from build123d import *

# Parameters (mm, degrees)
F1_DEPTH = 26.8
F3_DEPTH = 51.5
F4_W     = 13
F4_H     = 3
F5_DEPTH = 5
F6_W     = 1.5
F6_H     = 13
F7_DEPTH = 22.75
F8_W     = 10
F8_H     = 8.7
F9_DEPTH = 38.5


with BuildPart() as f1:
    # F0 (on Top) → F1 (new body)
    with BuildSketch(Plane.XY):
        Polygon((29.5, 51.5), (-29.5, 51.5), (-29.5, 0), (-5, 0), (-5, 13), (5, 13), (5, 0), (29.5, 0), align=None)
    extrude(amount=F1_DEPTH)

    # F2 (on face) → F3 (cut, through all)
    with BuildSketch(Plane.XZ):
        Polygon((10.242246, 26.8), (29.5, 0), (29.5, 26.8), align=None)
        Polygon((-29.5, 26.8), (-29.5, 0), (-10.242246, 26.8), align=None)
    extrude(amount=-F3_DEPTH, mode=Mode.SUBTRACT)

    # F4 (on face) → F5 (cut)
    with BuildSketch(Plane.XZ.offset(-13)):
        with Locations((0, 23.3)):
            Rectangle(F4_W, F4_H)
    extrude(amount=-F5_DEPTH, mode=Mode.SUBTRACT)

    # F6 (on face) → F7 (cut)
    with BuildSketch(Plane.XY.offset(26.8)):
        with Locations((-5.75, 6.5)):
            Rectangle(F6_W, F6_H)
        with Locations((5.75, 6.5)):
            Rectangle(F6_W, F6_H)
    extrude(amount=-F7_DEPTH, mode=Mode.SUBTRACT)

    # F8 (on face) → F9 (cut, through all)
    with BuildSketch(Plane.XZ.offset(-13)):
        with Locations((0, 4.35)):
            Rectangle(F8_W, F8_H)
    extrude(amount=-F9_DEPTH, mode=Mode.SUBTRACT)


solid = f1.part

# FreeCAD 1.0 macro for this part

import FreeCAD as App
import Part
import Sketcher
from FreeCAD import Vector
Q = App.Units.Quantity


def add_polygon(sketch, points):
    """Adds a closed chain of lines whose ends are joined by coincident constraints."""
    first, n = sketch.GeometryCount, len(points)
    for a, b in zip(points, points[1:] + points[:1]):
        sketch.addGeometry(Part.LineSegment(App.Vector(*a, 0), App.Vector(*b, 0)), False)
    for i in range(n):
        sketch.addConstraint(Sketcher.Constraint("Coincident", first + i, 2, first + (i + 1) % n, 1))

doc = App.newDocument("Part")
body = doc.addObject("PartDesign::Body", "Body")

# Sketch on XY plane
sketch1 = body.newObject("Sketcher::SketchObject", "Sketch")
sketch1.AttachmentSupport = (doc.getObject("XY_Plane"), [""])
sketch1.MapMode = "FlatFace"
add_polygon(sketch1, [(30, 52), (-30, 52), (-30, 0), (-5, 0), (-5, 13), (5, 13), (5, 0), (30, 0)])  # lines 0-7
sketch1.addConstraint([
    Sketcher.Constraint("Horizontal", 0),
    Sketcher.Constraint("Vertical", 1),
    Sketcher.Constraint("Horizontal", 2),
    Sketcher.Constraint("Vertical", 3),
    Sketcher.Constraint("Horizontal", 4),
    Sketcher.Constraint("Vertical", 5),
    Sketcher.Constraint("Horizontal", 6),
    Sketcher.Constraint("Vertical", 7),
    Sketcher.Constraint("Symmetric", 2, 2, 5, 2, -1, 1),
    Sketcher.Constraint("Symmetric", 1, 2, 6, 2, -2),
    Sketcher.Constraint("DistanceX", 0, 2, 0, 1, 59.0),
    Sketcher.Constraint("DistanceX", 4, 1, 4, 2, 10.0),
    Sketcher.Constraint("DistanceY", 3, 1, 3, 2, 13.0),
    Sketcher.Constraint("DistanceY", 1, 2, 1, 1, 51.5),
])
pad1 = body.newObject("PartDesign::Pad", "Pad")
pad1.Profile = sketch1
pad1.Length = 26.8

# Sketch on XZ plane
sketch2 = body.newObject("Sketcher::SketchObject", "Sketch001")
sketch2.AttachmentSupport = (doc.getObject("XZ_Plane"), [""])
sketch2.MapMode = "FlatFace"
add_polygon(sketch2, [(10, 27), (30, 0), (30, 27)])  # lines 0-2
add_polygon(sketch2, [(-30, 27), (-30, 0), (-10, 27)])  # lines 3-5
sketch2.addConstraint([
    Sketcher.Constraint("Vertical", 1),
    Sketcher.Constraint("Horizontal", 2),
    Sketcher.Constraint("Vertical", 3),
    Sketcher.Constraint("Horizontal", 5),
    Sketcher.Constraint("Symmetric", 0, 2, 3, 2, -1, 1),
    Sketcher.Constraint("Symmetric", 2, 2, 4, 2, -2),
    Sketcher.Constraint("PointOnObject", 0, 2, -1),
    Sketcher.Constraint("DistanceY", 1, 1, 1, 2, 26.8),
    Sketcher.Constraint("Angle", 0, Q("-54.299999 deg")),
    Sketcher.Constraint("DistanceX", 3, 2, 0, 2, 59.0),
])
pocket1 = body.newObject("PartDesign::Pocket", "Pocket")
pocket1.Profile = sketch2
pocket1.Type = "ThroughAll"

# Sketch on XZ plane
sketch3 = body.newObject("Sketcher::SketchObject", "Sketch002")
sketch3.AttachmentSupport = (doc.getObject("XZ_Plane"), [""])
sketch3.MapMode = "FlatFace"
sketch3.AttachmentOffset = App.Placement(Vector(0, 0, -13), App.Rotation())
add_polygon(sketch3, [(-6.5, 24.8), (-6.5, 21.8), (6.5, 21.8), (6.5, 24.8)])  # lines 0-3
sketch3.addConstraint([
    Sketcher.Constraint("Vertical", 0),
    Sketcher.Constraint("Horizontal", 1),
    Sketcher.Constraint("Vertical", 2),
    Sketcher.Constraint("Horizontal", 3),
    Sketcher.Constraint("DistanceX", 1, 1, 1, 2, 13.0),
    Sketcher.Constraint("DistanceY", 0, 2, 0, 1, 3.0),
    Sketcher.Constraint("DistanceX", 0, 2, -1, 1, 6.5),
    Sketcher.Constraint("DistanceY", -1, 1, 0, 2, 21.8),
])
pocket2 = body.newObject("PartDesign::Pocket", "Pocket001")
pocket2.Profile = sketch3
pocket2.Length = 5

# Sketch on XY plane
sketch4 = body.newObject("Sketcher::SketchObject", "Sketch003")
sketch4.AttachmentSupport = (doc.getObject("XY_Plane"), [""])
sketch4.MapMode = "FlatFace"
sketch4.AttachmentOffset = App.Placement(Vector(0, 0, 26.8), App.Rotation())
add_polygon(sketch4, [(-6.5, 13), (-6.5, 0), (-5, 0), (-5, 13)])  # lines 0-3
add_polygon(sketch4, [(5, 13), (5, 0), (6.5, 0), (6.5, 13)])  # lines 4-7
sketch4.addConstraint([
    Sketcher.Constraint("Vertical", 0),
    Sketcher.Constraint("Horizontal", 1),
    Sketcher.Constraint("Vertical", 2),
    Sketcher.Constraint("Horizontal", 3),
    Sketcher.Constraint("Vertical", 4),
    Sketcher.Constraint("Horizontal", 5),
    Sketcher.Constraint("Vertical", 6),
    Sketcher.Constraint("Horizontal", 7),
    Sketcher.Constraint("Symmetric", 1, 2, 4, 2, -1, 1),
    Sketcher.Constraint("Symmetric", 0, 2, 5, 2, -2),
    Sketcher.Constraint("Horizontal", 3, 2, 6, 2),
    Sketcher.Constraint("DistanceY", 0, 2, 0, 1, 13.0),
    Sketcher.Constraint("DistanceX", 1, 1, 1, 2, 1.5),
    Sketcher.Constraint("DistanceX", 1, 2, -1, 1, 5.0),
])
pocket3 = body.newObject("PartDesign::Pocket", "Pocket002")
pocket3.Profile = sketch4
pocket3.Length = 22.75

# Sketch on XZ plane
sketch5 = body.newObject("Sketcher::SketchObject", "Sketch004")
sketch5.AttachmentSupport = (doc.getObject("XZ_Plane"), [""])
sketch5.MapMode = "FlatFace"
sketch5.AttachmentOffset = App.Placement(Vector(0, 0, -13), App.Rotation())
add_polygon(sketch5, [(-5, 9), (-5, 0), (5, 0), (5, 9)])  # lines 0-3
sketch5.addConstraint([
    Sketcher.Constraint("Vertical", 0),
    Sketcher.Constraint("Horizontal", 1),
    Sketcher.Constraint("Vertical", 2),
    Sketcher.Constraint("Horizontal", 3),
    Sketcher.Constraint("Symmetric", 0, 2, 1, 2, -1, 1),
    Sketcher.Constraint("DistanceX", 1, 1, 1, 2, 10.0),
    Sketcher.Constraint("DistanceY", 0, 2, 0, 1, 8.7),
])
pocket4 = body.newObject("PartDesign::Pocket", "Pocket003")
pocket4.Profile = sketch5
pocket4.Type = "ThroughAll"

doc.recompute()
